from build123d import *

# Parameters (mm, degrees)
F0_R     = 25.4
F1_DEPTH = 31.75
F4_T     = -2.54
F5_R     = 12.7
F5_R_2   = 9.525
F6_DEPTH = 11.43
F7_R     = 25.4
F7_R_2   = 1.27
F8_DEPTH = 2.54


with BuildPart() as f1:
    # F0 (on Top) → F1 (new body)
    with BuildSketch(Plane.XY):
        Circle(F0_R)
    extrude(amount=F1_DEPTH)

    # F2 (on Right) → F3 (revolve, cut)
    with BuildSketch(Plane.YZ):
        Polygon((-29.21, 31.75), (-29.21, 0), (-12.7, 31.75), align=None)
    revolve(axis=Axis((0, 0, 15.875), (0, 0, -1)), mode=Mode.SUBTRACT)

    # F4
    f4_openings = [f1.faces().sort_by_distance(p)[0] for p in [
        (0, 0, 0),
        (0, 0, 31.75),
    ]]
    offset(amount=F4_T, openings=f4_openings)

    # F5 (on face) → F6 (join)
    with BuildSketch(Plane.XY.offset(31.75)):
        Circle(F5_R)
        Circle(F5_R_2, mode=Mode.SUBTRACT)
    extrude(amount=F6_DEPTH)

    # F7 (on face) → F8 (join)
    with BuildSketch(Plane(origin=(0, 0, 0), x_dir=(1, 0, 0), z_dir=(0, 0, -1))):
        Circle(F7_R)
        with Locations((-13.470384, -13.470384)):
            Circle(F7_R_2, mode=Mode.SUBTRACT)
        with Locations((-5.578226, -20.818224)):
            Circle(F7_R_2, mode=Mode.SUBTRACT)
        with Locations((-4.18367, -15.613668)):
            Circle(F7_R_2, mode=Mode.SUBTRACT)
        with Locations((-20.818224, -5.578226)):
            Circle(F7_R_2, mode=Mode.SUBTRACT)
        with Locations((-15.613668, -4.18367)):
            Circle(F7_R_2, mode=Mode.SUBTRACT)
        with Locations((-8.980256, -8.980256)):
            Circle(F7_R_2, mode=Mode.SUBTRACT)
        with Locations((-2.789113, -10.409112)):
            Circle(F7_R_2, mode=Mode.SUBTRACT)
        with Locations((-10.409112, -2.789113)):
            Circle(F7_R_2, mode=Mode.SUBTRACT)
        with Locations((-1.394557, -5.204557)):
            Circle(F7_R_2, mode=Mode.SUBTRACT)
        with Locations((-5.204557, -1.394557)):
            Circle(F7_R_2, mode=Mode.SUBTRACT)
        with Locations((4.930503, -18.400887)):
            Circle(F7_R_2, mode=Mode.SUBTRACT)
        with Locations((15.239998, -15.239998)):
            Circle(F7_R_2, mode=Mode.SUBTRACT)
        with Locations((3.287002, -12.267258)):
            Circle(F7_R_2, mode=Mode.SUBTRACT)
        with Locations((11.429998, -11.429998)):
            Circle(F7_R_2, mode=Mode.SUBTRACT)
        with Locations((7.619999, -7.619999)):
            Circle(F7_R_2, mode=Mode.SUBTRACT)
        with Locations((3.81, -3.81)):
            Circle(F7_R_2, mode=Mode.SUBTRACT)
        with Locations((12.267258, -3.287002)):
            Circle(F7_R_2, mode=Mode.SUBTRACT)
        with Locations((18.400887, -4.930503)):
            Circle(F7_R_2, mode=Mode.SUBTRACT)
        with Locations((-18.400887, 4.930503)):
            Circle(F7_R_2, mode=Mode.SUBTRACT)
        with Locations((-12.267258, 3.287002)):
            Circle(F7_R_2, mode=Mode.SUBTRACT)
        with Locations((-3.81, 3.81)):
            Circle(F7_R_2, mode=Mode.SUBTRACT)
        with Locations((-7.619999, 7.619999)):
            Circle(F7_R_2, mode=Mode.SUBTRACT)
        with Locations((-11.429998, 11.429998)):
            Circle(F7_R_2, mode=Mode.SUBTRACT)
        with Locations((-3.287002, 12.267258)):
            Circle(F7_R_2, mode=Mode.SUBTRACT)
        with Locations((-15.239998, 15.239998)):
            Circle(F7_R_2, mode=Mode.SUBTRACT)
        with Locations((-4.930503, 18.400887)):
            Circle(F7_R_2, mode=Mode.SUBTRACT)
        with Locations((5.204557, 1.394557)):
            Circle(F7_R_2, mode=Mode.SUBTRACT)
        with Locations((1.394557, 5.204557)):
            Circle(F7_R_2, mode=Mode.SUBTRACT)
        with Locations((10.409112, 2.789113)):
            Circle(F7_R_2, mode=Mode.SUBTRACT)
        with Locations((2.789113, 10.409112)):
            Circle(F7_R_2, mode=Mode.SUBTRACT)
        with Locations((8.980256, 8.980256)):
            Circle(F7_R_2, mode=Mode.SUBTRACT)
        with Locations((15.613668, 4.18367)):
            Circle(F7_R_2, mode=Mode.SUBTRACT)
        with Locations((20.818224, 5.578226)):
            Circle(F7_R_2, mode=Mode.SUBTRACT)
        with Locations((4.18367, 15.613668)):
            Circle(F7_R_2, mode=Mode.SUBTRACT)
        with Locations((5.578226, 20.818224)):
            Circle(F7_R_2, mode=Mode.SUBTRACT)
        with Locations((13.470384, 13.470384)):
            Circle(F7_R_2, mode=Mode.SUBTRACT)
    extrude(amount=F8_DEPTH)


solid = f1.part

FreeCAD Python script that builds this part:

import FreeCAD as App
import Part
import Sketcher
from FreeCAD import Vector
Q = App.Units.Quantity


def faces_at(feature, points):
    """Names of the faces that lie closest to the given points."""
    faces = feature.Shape.Faces
    near = lambda p: min(range(len(faces)), key=lambda i: faces[i].distToShape(Part.Vertex(*p))[0])
    return sorted({f"Face{near(p) + 1}" for p in points})


def add_polygon(sketch, points):
    """Adds a closed chain of lines whose ends are joined by coincident constraints."""
    first, n = sketch.GeometryCount, len(points)
    for a, b in zip(points, points[1:] + points[:1]):
        sketch.addGeometry(Part.LineSegment(App.Vector(*a, 0), App.Vector(*b, 0)), False)
    for i in range(n):
        sketch.addConstraint(Sketcher.Constraint("Coincident", first + i, 2, first + (i + 1) % n, 1))

doc = App.newDocument("Part")
body = doc.addObject("PartDesign::Body", "Body")

# Sketch on XY plane
sketch1 = body.newObject("Sketcher::SketchObject", "Sketch")
sketch1.AttachmentSupport = (doc.getObject("XY_Plane"), [""])
sketch1.MapMode = "FlatFace"
sketch1.addGeometry(Part.Circle(Vector(0, 0, 0), Vector(0, 0, 1), 25), False)
sketch1.addConstraint([
    Sketcher.Constraint("Coincident", 0, 3, -1, 1),
    Sketcher.Constraint("Diameter", 0, Q("2 in")),
])
pad1 = body.newObject("PartDesign::Pad", "Pad")
pad1.Profile = sketch1
pad1.Length = Q("1.25 in")

# Sketch on YZ plane
sketch2 = body.newObject("Sketcher::SketchObject", "Sketch001")
sketch2.AttachmentSupport = (doc.getObject("YZ_Plane"), [""])
sketch2.MapMode = "FlatFace"
add_polygon(sketch2, [(-29, 32), (-29, 0), (-13, 32)])  # lines 0-2
sketch2.addConstraint([
    Sketcher.Constraint("Vertical", 0),
    Sketcher.Constraint("Horizontal", 2),
    Sketcher.Constraint("PointOnObject", 0, 2, -1),
    Sketcher.Constraint("DistanceX", 2, 2, 2, 1, Q("0.65 in")),
    Sketcher.Constraint("DistanceY", 0, 2, 0, 1, Q("1.25 in")),
    Sketcher.Constraint("DistanceX", 1, 2, -1, 1, Q("0.5 in")),
])
groove = body.newObject("PartDesign::Groove", "Groove")
groove.Profile = sketch2
groove.ReferenceAxis = (sketch2, ["V_Axis"])
groove.Angle = 360
doc.recompute()

thickness = body.newObject("PartDesign::Thickness", "Thickness")
thickness.Base = (groove, faces_at(groove, [(0, 0, 0), (0, 0, 31.75)]))
thickness.Value = Q("0.1 in")
thickness.Reversed = True
thickness.Join = "Arc"

# Sketch on XY plane
sketch3 = body.newObject("Sketcher::SketchObject", "Sketch002")
sketch3.AttachmentSupport = (doc.getObject("XY_Plane"), [""])
sketch3.MapMode = "FlatFace"
sketch3.AttachmentOffset = App.Placement(Vector(0, 0, 1.25 * 25.4), App.Rotation())
sketch3.addGeometry([
    Part.Circle(Vector(0, 0, 0), Vector(0, 0, 1), 13),
    Part.Circle(Vector(0, 0, 0), Vector(0, 0, 1), 10),
], False)
sketch3.addConstraint([
    Sketcher.Constraint("Coincident", 0, 3, -1, 1),
    Sketcher.Constraint("Coincident", 1, 3, -1, 1),
    Sketcher.Constraint("Diameter", 0, Q("1 in")),
    Sketcher.Constraint("Diameter", 1, Q("0.75 in")),
])
pad2 = body.newObject("PartDesign::Pad", "Pad001")
pad2.Profile = sketch3
pad2.Length = Q("0.45 in")

# Sketch on XY plane
sketch4 = body.newObject("Sketcher::SketchObject", "Sketch003")
sketch4.AttachmentSupport = (doc.getObject("XY_Plane"), [""])
sketch4.MapMode = "FlatFace"
sketch4.addGeometry([
    Part.Circle(Vector(0, 0, 0), Vector(0, 0, 1), 25.4),  # 0
    Part.Circle(Vector(-13.5, 13.5, 0), Vector(0, 0, 1), 1.3),  # 1
    Part.Circle(Vector(-5.6, 20.8, 0), Vector(0, 0, 1), 1.3),  # 2
    Part.Circle(Vector(-4.2, 15.6, 0), Vector(0, 0, 1), 1.3),  # 3
    Part.Circle(Vector(-20.8, 5.6, 0), Vector(0, 0, 1), 1.3),  # 4
    Part.Circle(Vector(-15.6, 4.2, 0), Vector(0, 0, 1), 1.3),  # 5
    Part.Circle(Vector(-9, 9, 0), Vector(0, 0, 1), 1.3),  # 6
    Part.Circle(Vector(-2.8, 10.4, 0), Vector(0, 0, 1), 1.3),  # 7
    Part.Circle(Vector(-10.4, 2.8, 0), Vector(0, 0, 1), 1.3),  # 8
    Part.Circle(Vector(-1.4, 5.2, 0), Vector(0, 0, 1), 1.3),  # 9
    Part.Circle(Vector(-5.2, 1.4, 0), Vector(0, 0, 1), 1.3),  # 10
    Part.Circle(Vector(4.9, 18.4, 0), Vector(0, 0, 1), 1.3),  # 11
    Part.Circle(Vector(3.3, 12.3, 0), Vector(0, 0, 1), 1.3),  # 12
    Part.Circle(Vector(15.2, 15.2, 0), Vector(0, 0, 1), 1.3),  # 13
    Part.Circle(Vector(11.4, 11.4, 0), Vector(0, 0, 1), 1.3),  # 14
    Part.Circle(Vector(7.6, 7.6, 0), Vector(0, 0, 1), 1.3),  # 15
    Part.Circle(Vector(3.8, 3.8, 0), Vector(0, 0, 1), 1.3),  # 16
    Part.Circle(Vector(12.3, 3.3, 0), Vector(0, 0, 1), 1.3),  # 17
    Part.Circle(Vector(18.4, 4.9, 0), Vector(0, 0, 1), 1.3),  # 18
    Part.Circle(Vector(-18.4, -4.9, 0), Vector(0, 0, 1), 1.3),  # 19
    Part.Circle(Vector(-12.3, -3.3, 0), Vector(0, 0, 1), 1.3),  # 20
    Part.Circle(Vector(-3.8, -3.8, 0), Vector(0, 0, 1), 1.3),  # 21
    Part.Circle(Vector(-7.6, -7.6, 0), Vector(0, 0, 1), 1.3),  # 22
    Part.Circle(Vector(-11.4, -11.4, 0), Vector(0, 0, 1), 1.3),  # 23
    Part.Circle(Vector(-15.2, -15.2, 0), Vector(0, 0, 1), 1.3),  # 24
    Part.Circle(Vector(-3.3, -12.3, 0), Vector(0, 0, 1), 1.3),  # 25
    Part.Circle(Vector(-4.9, -18.4, 0), Vector(0, 0, 1), 1.3),  # 26
    Part.Circle(Vector(5.2, -1.4, 0), Vector(0, 0, 1), 1.3),  # 27
    Part.Circle(Vector(1.4, -5.2, 0), Vector(0, 0, 1), 1.3),  # 28
    Part.Circle(Vector(10.4, -2.8, 0), Vector(0, 0, 1), 1.3),  # 29
    Part.Circle(Vector(2.8, -10.4, 0), Vector(0, 0, 1), 1.3),  # 30
    Part.Circle(Vector(9, -9, 0), Vector(0, 0, 1), 1.3),  # 31
    Part.Circle(Vector(15.6, -4.2, 0), Vector(0, 0, 1), 1.3),  # 32
    Part.Circle(Vector(20.8, -5.6, 0), Vector(0, 0, 1), 1.3),  # 33
    Part.Circle(Vector(4.2, -15.6, 0), Vector(0, 0, 1), 1.3),  # 34
    Part.Circle(Vector(5.6, -20.8, 0), Vector(0, 0, 1), 1.3),  # 35
    Part.Circle(Vector(13.5, -13.5, 0), Vector(0, 0, 1), 1.3),  # 36
], False)
sketch4.addConstraint([
    Sketcher.Constraint("Coincident", 0, 3, -1, 1),
    Sketcher.Constraint("Equal", 1, 2),
    Sketcher.Constraint("Equal", 2, 3),
    Sketcher.Constraint("Equal", 3, 4),
    Sketcher.Constraint("Equal", 4, 5),
    Sketcher.Constraint("Equal", 5, 6),
    Sketcher.Constraint("Equal", 6, 7),
    Sketcher.Constraint("Equal", 7, 8),
    Sketcher.Constraint("Equal", 8, 9),
    Sketcher.Constraint("Equal", 9, 10),
    Sketcher.Constraint("Equal", 10, 11),
    Sketcher.Constraint("Equal", 11, 12),
    Sketcher.Constraint("Equal", 12, 13),
    Sketcher.Constraint("Equal", 13, 14),
    Sketcher.Constraint("Equal", 14, 15),
    Sketcher.Constraint("Equal", 15, 16),
    Sketcher.Constraint("Equal", 16, 17),
    Sketcher.Constraint("Equal", 17, 18),
    Sketcher.Constraint("Equal", 18, 19),
    Sketcher.Constraint("Equal", 19, 20),
    Sketcher.Constraint("Equal", 20, 21),
    Sketcher.Constraint("Equal", 21, 22),
    Sketcher.Constraint("Equal", 22, 23),
    Sketcher.Constraint("Equal", 23, 24),
    Sketcher.Constraint("Equal", 24, 25),
    Sketcher.Constraint("Equal", 25, 26),
    Sketcher.Constraint("Equal", 26, 27),
    Sketcher.Constraint("Equal", 27, 28),
    Sketcher.Constraint("Equal", 28, 29),
    Sketcher.Constraint("Equal", 29, 30),
    Sketcher.Constraint("Equal", 30, 31),
    Sketcher.Constraint("Equal", 31, 32),
    Sketcher.Constraint("Equal", 32, 33),
    Sketcher.Constraint("Equal", 33, 34),
    Sketcher.Constraint("Equal", 34, 35),
    Sketcher.Constraint("Equal", 35, 36),
    Sketcher.Constraint("Symmetric", 18, 3, 19, 3, -1, 1),
    Sketcher.Constraint("Symmetric", 17, 3, 20, 3, -1, 1),
    Sketcher.Constraint("Symmetric", 16, 3, 21, 3, -1, 1),
    Sketcher.Constraint("Symmetric", 15, 3, 22, 3, -1, 1),
    Sketcher.Constraint("Symmetric", 14, 3, 23, 3, -1, 1),
    Sketcher.Constraint("Symmetric", 13, 3, 24, 3, -1, 1),
    Sketcher.Constraint("Symmetric", 12, 3, 25, 3, -1, 1),
    Sketcher.Constraint("Symmetric", 11, 3, 26, 3, -1, 1),
    Sketcher.Constraint("Symmetric", 10, 3, 27, 3, -1, 1),
    Sketcher.Constraint("Symmetric", 9, 3, 28, 3, -1, 1),
    Sketcher.Constraint("Symmetric", 8, 3, 29, 3, -1, 1),
    Sketcher.Constraint("Symmetric", 7, 3, 30, 3, -1, 1),
    Sketcher.Constraint("Symmetric", 6, 3, 31, 3, -1, 1),
    Sketcher.Constraint("Symmetric", 5, 3, 32, 3, -1, 1),
    Sketcher.Constraint("Symmetric", 4, 3, 33, 3, -1, 1),
    Sketcher.Constraint("Symmetric", 3, 3, 34, 3, -1, 1),
    Sketcher.Constraint("Symmetric", 2, 3, 35, 3, -1, 1),
    Sketcher.Constraint("Symmetric", 1, 3, 36, 3, -1, 1),
    Sketcher.Constraint("Diameter", 0, Q("2 in")),
    Sketcher.Constraint("Diameter", 1, Q("0.1 in")),
    Sketcher.Constraint("DistanceX", -1, 1, 13, 3, Q("0.5999999 in")),
    Sketcher.Constraint("DistanceY", -1, 1, 13, 3, Q("0.5999999 in")),
    Sketcher.Constraint("DistanceX", -1, 1, 15, 3, Q("0.3 in")),
    Sketcher.Constraint("DistanceY", -1, 1, 15, 3, Q("0.3 in")),
    Sketcher.Constraint("DistanceX", 4, 3, 2, 3, Q("0.5999999 in")),
    Sketcher.Constraint("DistanceY", 4, 3, 2, 3, Q("0.5999999 in")),
    Sketcher.Constraint("DistanceX", 8, 3, 7, 3, Q("0.3 in")),
    Sketcher.Constraint("DistanceY", 8, 3, 7, 3, Q("0.3 in")),
    Sketcher.Constraint("DistanceX", 23, 3, 21, 3, Q("0.2999999 in")),
    Sketcher.Constraint("DistanceY", 23, 3, 21, 3, Q("0.2999999 in")),
    Sketcher.Constraint("DistanceX", -1, 1, 14, 3, Q("0.4499999 in")),
    Sketcher.Constraint("DistanceY", -1, 1, 14, 3, Q("0.4499999 in")),
    Sketcher.Constraint("DistanceX", 5, 3, 3, 3, Q("0.4499999 in")),
    Sketcher.Constraint("DistanceY", 5, 3, 3, 3, Q("0.4499999 in")),
    Sketcher.Constraint("DistanceX", 10, 3, 9, 3, Q("0.15 in")),
    Sketcher.Constraint("DistanceY", 10, 3, 9, 3, Q("0.15 in")),
    Sketcher.Constraint("DistanceX", 6, 3, 9, 3, Q("7.585699 mm")),
    Sketcher.Constraint("DistanceY", 9, 3, 6, 3, Q("3.775699 mm")),
    Sketcher.Constraint("DistanceX", 12, 3, 11, 3, Q("1.643501 mm")),
    Sketcher.Constraint("DistanceY", 9, 3, 12, 3, Q("7.062701 mm")),
    Sketcher.Constraint("DistanceY", 17, 3, 18, 3, Q("1.643501 mm")),
    Sketcher.Constraint("DistanceX", 20, 3, 10, 3, Q("7.062701 mm")),
    Sketcher.Constraint("DistanceX", 3, 3, -1, 1, Q("4.18367 mm")),
    Sketcher.Constraint("DistanceY", -1, 1, 5, 3, Q("4.18367 mm")),
    Sketcher.Constraint("DistanceY", 1, 3, 2, 3, Q("7.34784 mm")),
    Sketcher.Constraint("DistanceX", 4, 3, 1, 3, Q("7.34784 mm")),
    Sketcher.Constraint("DistanceX", 6, 3, 2, 3, Q("3.40203 mm")),
    Sketcher.Constraint("DistanceY", 4, 3, 6, 3, Q("3.40203 mm")),
    Sketcher.Constraint("DistanceX", 1, 3, 7, 3, Q("10.681271 mm")),
    Sketcher.Constraint("DistanceY", 7, 3, 1, 3, Q("3.061272 mm")),
    Sketcher.Constraint("DistanceY", 9, 3, 3, 3, Q("10.409111 mm")),
    Sketcher.Constraint("DistanceY", 3, 3, 11, 3, Q("2.787219 mm")),
    Sketcher.Constraint("DistanceX", 2, 3, 11, 3, Q("10.508729 mm")),
    Sketcher.Constraint("DistanceX", 7, 3, 13, 3, Q("18.029111 mm")),
    Sketcher.Constraint("DistanceX", 17, 3, 18, 3, Q("6.133629 mm")),
    Sketcher.Constraint("DistanceY", 19, 3, 4, 3, Q("10.508729 mm")),
])
pad3 = body.newObject("PartDesign::Pad", "Pad002")
pad3.Profile = sketch4
pad3.Length = Q("0.1 in")
pad3.Reversed = True

doc.recompute()
